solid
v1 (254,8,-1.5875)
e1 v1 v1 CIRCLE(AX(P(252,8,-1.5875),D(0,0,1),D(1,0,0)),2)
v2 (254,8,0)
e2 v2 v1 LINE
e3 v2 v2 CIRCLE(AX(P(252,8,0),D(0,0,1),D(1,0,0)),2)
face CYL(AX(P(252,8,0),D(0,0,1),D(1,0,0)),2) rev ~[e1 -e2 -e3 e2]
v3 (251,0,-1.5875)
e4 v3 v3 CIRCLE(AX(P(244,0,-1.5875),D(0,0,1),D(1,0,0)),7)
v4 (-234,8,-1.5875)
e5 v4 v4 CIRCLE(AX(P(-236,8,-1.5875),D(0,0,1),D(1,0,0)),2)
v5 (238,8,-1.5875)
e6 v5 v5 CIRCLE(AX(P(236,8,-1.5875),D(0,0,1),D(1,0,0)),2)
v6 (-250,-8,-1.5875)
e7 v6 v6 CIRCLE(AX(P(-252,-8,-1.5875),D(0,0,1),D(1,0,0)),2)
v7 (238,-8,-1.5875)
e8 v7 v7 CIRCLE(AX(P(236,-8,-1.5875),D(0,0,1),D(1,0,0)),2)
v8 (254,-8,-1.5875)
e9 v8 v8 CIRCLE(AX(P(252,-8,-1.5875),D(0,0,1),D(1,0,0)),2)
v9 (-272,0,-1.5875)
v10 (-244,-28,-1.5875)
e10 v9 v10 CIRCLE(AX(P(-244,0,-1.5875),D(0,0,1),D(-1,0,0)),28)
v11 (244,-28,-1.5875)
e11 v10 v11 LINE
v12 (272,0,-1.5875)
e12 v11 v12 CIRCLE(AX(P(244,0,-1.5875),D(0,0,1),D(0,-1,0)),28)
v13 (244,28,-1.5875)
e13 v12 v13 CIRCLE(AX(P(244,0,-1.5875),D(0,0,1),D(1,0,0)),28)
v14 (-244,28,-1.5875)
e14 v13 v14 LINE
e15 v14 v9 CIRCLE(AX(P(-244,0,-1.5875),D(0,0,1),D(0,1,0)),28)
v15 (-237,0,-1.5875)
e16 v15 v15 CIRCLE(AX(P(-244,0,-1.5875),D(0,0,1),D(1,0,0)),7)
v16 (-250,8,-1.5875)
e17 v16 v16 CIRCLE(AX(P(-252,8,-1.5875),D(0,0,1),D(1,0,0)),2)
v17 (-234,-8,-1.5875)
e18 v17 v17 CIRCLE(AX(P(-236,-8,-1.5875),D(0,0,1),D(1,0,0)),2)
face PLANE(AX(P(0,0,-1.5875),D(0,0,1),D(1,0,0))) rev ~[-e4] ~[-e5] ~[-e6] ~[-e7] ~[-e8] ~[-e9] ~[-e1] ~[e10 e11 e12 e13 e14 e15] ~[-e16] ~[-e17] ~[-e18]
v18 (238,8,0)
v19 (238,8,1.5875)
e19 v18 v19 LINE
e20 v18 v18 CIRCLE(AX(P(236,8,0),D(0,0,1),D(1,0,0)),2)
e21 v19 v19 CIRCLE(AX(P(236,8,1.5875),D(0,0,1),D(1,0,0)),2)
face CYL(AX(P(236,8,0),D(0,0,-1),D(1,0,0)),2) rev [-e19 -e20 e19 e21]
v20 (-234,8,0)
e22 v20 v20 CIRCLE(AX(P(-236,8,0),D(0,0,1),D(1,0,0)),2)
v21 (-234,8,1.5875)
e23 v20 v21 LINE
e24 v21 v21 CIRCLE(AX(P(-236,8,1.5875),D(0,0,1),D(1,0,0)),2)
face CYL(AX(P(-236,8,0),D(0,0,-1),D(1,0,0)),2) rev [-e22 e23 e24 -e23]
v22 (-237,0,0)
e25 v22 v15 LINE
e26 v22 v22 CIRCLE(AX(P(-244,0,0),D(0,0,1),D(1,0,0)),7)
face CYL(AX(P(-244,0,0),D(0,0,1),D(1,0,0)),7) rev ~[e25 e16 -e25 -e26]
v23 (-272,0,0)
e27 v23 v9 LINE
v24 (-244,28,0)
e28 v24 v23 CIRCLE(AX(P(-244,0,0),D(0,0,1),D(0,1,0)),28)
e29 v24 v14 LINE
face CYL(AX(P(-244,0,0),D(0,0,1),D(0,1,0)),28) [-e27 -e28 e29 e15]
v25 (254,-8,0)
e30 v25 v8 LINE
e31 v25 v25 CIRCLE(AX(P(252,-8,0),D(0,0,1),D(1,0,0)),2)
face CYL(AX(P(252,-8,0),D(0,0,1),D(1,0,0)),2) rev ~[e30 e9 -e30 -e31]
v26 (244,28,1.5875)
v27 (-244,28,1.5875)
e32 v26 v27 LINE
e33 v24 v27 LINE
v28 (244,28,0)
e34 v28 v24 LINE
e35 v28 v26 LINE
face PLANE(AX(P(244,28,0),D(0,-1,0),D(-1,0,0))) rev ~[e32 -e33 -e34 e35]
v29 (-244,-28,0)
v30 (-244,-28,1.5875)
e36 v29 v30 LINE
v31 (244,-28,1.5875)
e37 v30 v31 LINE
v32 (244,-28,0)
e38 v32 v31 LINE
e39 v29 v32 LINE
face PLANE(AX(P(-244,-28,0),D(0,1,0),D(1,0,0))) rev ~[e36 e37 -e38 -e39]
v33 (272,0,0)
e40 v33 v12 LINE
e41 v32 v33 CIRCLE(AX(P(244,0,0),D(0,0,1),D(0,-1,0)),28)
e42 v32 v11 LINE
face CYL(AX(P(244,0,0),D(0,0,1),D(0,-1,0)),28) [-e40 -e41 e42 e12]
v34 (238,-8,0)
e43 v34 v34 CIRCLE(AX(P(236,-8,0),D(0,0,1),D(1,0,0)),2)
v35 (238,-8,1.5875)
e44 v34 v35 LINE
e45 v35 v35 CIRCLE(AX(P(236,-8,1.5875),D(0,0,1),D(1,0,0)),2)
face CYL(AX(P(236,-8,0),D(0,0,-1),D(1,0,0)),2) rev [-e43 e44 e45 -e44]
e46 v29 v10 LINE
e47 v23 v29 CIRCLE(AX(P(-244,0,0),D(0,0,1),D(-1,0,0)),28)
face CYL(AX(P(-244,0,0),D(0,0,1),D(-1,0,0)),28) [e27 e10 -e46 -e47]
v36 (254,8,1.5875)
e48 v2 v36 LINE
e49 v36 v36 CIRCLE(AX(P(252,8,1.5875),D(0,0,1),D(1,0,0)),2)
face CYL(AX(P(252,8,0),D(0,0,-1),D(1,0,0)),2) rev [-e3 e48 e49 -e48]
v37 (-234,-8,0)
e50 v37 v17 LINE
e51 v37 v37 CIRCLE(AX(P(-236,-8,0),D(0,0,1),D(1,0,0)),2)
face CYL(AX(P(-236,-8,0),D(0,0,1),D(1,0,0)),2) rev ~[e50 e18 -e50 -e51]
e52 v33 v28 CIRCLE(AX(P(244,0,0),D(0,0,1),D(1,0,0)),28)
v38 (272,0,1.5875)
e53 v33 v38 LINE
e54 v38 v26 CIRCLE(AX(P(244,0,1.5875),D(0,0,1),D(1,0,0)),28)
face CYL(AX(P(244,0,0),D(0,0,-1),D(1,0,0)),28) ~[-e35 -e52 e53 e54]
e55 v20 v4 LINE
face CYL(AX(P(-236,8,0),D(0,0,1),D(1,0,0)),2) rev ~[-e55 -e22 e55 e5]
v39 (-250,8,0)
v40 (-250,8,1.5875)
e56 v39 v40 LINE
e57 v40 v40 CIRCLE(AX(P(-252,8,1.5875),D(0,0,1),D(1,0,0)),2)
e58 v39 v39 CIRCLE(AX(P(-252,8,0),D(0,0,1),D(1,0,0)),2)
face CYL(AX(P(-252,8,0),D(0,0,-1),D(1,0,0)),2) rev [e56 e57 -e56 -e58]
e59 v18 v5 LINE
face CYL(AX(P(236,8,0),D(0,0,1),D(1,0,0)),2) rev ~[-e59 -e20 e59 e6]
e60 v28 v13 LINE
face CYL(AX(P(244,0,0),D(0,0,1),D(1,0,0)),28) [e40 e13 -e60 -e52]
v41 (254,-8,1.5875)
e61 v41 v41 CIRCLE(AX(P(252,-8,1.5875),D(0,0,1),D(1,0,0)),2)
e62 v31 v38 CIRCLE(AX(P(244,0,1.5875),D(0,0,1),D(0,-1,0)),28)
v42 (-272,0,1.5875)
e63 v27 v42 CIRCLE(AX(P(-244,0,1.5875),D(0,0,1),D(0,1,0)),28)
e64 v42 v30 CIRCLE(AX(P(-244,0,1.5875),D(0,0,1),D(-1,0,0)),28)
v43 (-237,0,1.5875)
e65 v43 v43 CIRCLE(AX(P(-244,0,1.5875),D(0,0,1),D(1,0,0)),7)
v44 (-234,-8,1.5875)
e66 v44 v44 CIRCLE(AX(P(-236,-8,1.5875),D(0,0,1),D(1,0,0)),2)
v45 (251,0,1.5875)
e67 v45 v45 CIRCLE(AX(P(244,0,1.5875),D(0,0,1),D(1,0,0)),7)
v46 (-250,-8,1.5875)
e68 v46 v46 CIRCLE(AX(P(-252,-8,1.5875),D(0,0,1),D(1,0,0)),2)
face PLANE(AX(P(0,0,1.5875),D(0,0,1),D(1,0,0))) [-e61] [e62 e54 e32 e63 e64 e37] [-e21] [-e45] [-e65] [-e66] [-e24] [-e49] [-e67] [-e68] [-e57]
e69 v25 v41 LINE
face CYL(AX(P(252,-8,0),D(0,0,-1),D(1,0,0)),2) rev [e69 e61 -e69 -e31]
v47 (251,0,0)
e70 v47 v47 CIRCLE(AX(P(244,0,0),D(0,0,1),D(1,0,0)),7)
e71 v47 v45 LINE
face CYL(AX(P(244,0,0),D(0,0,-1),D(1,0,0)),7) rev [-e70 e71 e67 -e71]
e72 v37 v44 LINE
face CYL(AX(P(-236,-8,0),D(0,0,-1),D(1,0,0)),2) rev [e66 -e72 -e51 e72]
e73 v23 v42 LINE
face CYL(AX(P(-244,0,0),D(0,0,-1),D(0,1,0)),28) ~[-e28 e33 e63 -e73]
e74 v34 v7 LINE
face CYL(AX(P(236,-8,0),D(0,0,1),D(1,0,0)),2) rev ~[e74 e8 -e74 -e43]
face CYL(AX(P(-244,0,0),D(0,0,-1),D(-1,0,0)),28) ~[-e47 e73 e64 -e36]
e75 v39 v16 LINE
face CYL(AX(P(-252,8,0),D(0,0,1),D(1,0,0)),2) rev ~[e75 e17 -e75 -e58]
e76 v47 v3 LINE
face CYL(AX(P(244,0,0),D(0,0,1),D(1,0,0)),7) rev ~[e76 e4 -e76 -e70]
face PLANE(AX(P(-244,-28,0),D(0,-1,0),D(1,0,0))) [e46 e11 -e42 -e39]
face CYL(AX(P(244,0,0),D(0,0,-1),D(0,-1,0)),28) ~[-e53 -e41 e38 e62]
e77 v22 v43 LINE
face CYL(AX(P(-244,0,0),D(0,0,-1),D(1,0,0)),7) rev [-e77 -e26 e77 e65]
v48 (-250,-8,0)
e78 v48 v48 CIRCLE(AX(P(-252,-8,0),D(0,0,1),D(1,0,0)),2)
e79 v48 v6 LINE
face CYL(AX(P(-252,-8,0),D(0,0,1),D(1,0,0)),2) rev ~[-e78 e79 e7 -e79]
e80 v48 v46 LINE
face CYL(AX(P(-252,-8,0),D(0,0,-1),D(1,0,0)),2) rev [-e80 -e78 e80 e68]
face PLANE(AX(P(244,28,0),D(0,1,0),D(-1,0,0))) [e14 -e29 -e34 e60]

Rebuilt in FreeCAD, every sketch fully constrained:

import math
import FreeCAD as App
import Part
import Sketcher

V = App.Vector
Q = App.Units.Quantity

doc = App.newDocument("Part")
body = doc.addObject("PartDesign::Body", "Body")

# Sketch on XY plane
sketch1 = doc.addObject("Sketcher::SketchObject", "Sketch")
body.addObject(sketch1)
sketch1.AttachmentSupport = (doc.XY_Plane, [""])
sketch1.MapMode = "FlatFace"
sketch1.addGeometry([
    Part.ArcOfCircle(Part.Circle(V(-244, 0, 0), V(0, 0, 1), 28), math.radians(90), math.radians(270)),  # 0
    Part.LineSegment(V(-244, -28, 0), V(244, -28, 0)),  # 1
    Part.ArcOfCircle(Part.Circle(V(244, 0, 0), V(0, 0, 1), 28), math.radians(-90), math.radians(90)),  # 2
    Part.LineSegment(V(244, 28, 0), V(-244, 28, 0)),  # 3
    Part.Circle(V(-252, -8, 0), V(0, 0, 1), 2),  # 4
    Part.Circle(V(-236, -8, 0), V(0, 0, 1), 2),  # 5
    Part.Circle(V(236, -8, 0), V(0, 0, 1), 2),  # 6
    Part.Circle(V(252, -8, 0), V(0, 0, 1), 2),  # 7
    Part.Circle(V(-244, 0, 0), V(0, 0, 1), 7),  # 8
    Part.Circle(V(-252, 8, 0), V(0, 0, 1), 2),  # 9
    Part.Circle(V(-236, 8, 0), V(0, 0, 1), 2),  # 10
    Part.Circle(V(244, 0, 0), V(0, 0, 1), 7),  # 11
    Part.Circle(V(236, 8, 0), V(0, 0, 1), 2),  # 12
    Part.Circle(V(252, 8, 0), V(0, 0, 1), 2),  # 13
], False)
sketch1.addConstraint([
    Sketcher.Constraint("Tangent", 0, 2, 1, 1),
    Sketcher.Constraint("Tangent", 1, 2, 2, 1),
    Sketcher.Constraint("Tangent", 2, 2, 3, 1),
    Sketcher.Constraint("Tangent", 3, 2, 0, 1),
    Sketcher.Constraint("Horizontal", 1),
    Sketcher.Constraint("Horizontal", 3),
    Sketcher.Constraint("Coincident", 8, 3, 0, 3),
    Sketcher.Constraint("Coincident", 11, 3, 2, 3),
    Sketcher.Constraint("Equal", 4, 5),
    Sketcher.Constraint("Equal", 5, 6),
    Sketcher.Constraint("Equal", 6, 7),
    Sketcher.Constraint("Equal", 7, 9),
    Sketcher.Constraint("Equal", 9, 10),
    Sketcher.Constraint("Equal", 8, 11),
    Sketcher.Constraint("Equal", 10, 12),
    Sketcher.Constraint("Equal", 12, 13),
    Sketcher.Constraint("Symmetric", 0, 3, 2, 3, -1, 1),
    Sketcher.Constraint("Symmetric", 7, 3, 9, 3, -1, 1),
    Sketcher.Constraint("Symmetric", 6, 3, 10, 3, -1, 1),
    Sketcher.Constraint("Symmetric", 5, 3, 12, 3, -1, 1),
    Sketcher.Constraint("Symmetric", 4, 3, 13, 3, -1, 1),
    Sketcher.Constraint("Symmetric", 5, 3, 6, 3, -2),
    Sketcher.Constraint("Symmetric", 4, 3, 7, 3, -2),
    Sketcher.Constraint("Horizontal", 4, 3, 5, 3),
    Sketcher.Constraint("Diameter", 4, Q("4 mm")),
    Sketcher.Constraint("Diameter", 8, Q("14 mm")),
    Sketcher.Constraint("Radius", 0, Q("28 mm")),
    Sketcher.Constraint("DistanceY", 4, 3, -1, 1, Q("8 mm")),
    Sketcher.Constraint("DistanceX", 4, 3, 0, 3, Q("8 mm")),
    Sketcher.Constraint("DistanceX", 0, 3, 5, 3, Q("8 mm")),
    Sketcher.Constraint("DistanceX", 1, 1, 1, 2, Q("488 mm")),
])
pad1 = doc.addObject("PartDesign::Pad", "Pad")
body.addObject(pad1)
pad1.Profile = sketch1
pad1.Length = 3.175
pad1.Midplane = True

doc.recompute()
